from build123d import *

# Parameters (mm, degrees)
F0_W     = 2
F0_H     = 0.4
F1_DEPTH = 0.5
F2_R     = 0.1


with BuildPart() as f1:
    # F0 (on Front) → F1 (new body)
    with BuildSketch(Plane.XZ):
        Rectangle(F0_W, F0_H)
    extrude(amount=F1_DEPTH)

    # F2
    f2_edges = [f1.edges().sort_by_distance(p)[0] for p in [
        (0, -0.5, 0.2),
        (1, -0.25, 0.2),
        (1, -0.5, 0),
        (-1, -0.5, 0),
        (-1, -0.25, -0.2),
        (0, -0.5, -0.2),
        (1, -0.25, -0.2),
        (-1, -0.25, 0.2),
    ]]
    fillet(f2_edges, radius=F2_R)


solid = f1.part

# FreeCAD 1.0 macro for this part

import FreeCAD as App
import Part
import Sketcher

V = App.Vector


def edges_at(feature, points):
    """Names of the edges that pass closest to the given points."""
    edges = feature.Shape.Edges
    near = lambda p: min(range(len(edges)), key=lambda i: edges[i].distToShape(Part.Vertex(*p))[0])
    return sorted({f"Edge{near(p) + 1}" for p in points})

doc = App.newDocument("Part")
body = doc.addObject("PartDesign::Body", "Body")

# Sketch on XZ plane
sketch1 = body.newObject("Sketcher::SketchObject", "Sketch")
sketch1.AttachmentSupport = (doc.getObject("XZ_Plane"), [""])
sketch1.MapMode = "FlatFace"
sketch1.addGeometry([
    Part.LineSegment(V(-1, 0.2, 0), V(-1, -0.2, 0)),
    Part.LineSegment(V(-1, -0.2, 0), V(1, -0.2, 0)),
    Part.LineSegment(V(1, -0.2, 0), V(1, 0.2, 0)),
    Part.LineSegment(V(1, 0.2, 0), V(-1, 0.2, 0)),
], False)
sketch1.addConstraint([
    Sketcher.Constraint("Coincident", 0, 2, 1, 1),
    Sketcher.Constraint("Coincident", 1, 2, 2, 1),
    Sketcher.Constraint("Coincident", 2, 2, 3, 1),
    Sketcher.Constraint("Coincident", 3, 2, 0, 1),
    Sketcher.Constraint("Vertical", 0),
    Sketcher.Constraint("Horizontal", 1),
    Sketcher.Constraint("Vertical", 2),
    Sketcher.Constraint("Horizontal", 3),
    Sketcher.Constraint("Symmetric", 0, 2, 2, 2, -1, 1),
    Sketcher.Constraint("DistanceX", 1, 1, 1, 2, 2.0),
    Sketcher.Constraint("DistanceY", 0, 2, 0, 1, 0.4),
])
pad1 = body.newObject("PartDesign::Pad", "Pad")
pad1.Profile = sketch1
pad1.Length = 0.5
doc.recompute()

fillet = body.newObject("PartDesign::Fillet", "Fillet")
fillet.Base = (pad1, edges_at(pad1, [
    (0, -0.5, 0.2),
    (1, -0.25, 0.2),
    (1, -0.5, 0),
    (-1, -0.5, 0),
    (-1, -0.25, -0.2),
    (0, -0.5, -0.2),
    (1, -0.25, -0.2),
    (-1, -0.25, 0.2),
]))
fillet.Radius = 0.1

doc.recompute()
